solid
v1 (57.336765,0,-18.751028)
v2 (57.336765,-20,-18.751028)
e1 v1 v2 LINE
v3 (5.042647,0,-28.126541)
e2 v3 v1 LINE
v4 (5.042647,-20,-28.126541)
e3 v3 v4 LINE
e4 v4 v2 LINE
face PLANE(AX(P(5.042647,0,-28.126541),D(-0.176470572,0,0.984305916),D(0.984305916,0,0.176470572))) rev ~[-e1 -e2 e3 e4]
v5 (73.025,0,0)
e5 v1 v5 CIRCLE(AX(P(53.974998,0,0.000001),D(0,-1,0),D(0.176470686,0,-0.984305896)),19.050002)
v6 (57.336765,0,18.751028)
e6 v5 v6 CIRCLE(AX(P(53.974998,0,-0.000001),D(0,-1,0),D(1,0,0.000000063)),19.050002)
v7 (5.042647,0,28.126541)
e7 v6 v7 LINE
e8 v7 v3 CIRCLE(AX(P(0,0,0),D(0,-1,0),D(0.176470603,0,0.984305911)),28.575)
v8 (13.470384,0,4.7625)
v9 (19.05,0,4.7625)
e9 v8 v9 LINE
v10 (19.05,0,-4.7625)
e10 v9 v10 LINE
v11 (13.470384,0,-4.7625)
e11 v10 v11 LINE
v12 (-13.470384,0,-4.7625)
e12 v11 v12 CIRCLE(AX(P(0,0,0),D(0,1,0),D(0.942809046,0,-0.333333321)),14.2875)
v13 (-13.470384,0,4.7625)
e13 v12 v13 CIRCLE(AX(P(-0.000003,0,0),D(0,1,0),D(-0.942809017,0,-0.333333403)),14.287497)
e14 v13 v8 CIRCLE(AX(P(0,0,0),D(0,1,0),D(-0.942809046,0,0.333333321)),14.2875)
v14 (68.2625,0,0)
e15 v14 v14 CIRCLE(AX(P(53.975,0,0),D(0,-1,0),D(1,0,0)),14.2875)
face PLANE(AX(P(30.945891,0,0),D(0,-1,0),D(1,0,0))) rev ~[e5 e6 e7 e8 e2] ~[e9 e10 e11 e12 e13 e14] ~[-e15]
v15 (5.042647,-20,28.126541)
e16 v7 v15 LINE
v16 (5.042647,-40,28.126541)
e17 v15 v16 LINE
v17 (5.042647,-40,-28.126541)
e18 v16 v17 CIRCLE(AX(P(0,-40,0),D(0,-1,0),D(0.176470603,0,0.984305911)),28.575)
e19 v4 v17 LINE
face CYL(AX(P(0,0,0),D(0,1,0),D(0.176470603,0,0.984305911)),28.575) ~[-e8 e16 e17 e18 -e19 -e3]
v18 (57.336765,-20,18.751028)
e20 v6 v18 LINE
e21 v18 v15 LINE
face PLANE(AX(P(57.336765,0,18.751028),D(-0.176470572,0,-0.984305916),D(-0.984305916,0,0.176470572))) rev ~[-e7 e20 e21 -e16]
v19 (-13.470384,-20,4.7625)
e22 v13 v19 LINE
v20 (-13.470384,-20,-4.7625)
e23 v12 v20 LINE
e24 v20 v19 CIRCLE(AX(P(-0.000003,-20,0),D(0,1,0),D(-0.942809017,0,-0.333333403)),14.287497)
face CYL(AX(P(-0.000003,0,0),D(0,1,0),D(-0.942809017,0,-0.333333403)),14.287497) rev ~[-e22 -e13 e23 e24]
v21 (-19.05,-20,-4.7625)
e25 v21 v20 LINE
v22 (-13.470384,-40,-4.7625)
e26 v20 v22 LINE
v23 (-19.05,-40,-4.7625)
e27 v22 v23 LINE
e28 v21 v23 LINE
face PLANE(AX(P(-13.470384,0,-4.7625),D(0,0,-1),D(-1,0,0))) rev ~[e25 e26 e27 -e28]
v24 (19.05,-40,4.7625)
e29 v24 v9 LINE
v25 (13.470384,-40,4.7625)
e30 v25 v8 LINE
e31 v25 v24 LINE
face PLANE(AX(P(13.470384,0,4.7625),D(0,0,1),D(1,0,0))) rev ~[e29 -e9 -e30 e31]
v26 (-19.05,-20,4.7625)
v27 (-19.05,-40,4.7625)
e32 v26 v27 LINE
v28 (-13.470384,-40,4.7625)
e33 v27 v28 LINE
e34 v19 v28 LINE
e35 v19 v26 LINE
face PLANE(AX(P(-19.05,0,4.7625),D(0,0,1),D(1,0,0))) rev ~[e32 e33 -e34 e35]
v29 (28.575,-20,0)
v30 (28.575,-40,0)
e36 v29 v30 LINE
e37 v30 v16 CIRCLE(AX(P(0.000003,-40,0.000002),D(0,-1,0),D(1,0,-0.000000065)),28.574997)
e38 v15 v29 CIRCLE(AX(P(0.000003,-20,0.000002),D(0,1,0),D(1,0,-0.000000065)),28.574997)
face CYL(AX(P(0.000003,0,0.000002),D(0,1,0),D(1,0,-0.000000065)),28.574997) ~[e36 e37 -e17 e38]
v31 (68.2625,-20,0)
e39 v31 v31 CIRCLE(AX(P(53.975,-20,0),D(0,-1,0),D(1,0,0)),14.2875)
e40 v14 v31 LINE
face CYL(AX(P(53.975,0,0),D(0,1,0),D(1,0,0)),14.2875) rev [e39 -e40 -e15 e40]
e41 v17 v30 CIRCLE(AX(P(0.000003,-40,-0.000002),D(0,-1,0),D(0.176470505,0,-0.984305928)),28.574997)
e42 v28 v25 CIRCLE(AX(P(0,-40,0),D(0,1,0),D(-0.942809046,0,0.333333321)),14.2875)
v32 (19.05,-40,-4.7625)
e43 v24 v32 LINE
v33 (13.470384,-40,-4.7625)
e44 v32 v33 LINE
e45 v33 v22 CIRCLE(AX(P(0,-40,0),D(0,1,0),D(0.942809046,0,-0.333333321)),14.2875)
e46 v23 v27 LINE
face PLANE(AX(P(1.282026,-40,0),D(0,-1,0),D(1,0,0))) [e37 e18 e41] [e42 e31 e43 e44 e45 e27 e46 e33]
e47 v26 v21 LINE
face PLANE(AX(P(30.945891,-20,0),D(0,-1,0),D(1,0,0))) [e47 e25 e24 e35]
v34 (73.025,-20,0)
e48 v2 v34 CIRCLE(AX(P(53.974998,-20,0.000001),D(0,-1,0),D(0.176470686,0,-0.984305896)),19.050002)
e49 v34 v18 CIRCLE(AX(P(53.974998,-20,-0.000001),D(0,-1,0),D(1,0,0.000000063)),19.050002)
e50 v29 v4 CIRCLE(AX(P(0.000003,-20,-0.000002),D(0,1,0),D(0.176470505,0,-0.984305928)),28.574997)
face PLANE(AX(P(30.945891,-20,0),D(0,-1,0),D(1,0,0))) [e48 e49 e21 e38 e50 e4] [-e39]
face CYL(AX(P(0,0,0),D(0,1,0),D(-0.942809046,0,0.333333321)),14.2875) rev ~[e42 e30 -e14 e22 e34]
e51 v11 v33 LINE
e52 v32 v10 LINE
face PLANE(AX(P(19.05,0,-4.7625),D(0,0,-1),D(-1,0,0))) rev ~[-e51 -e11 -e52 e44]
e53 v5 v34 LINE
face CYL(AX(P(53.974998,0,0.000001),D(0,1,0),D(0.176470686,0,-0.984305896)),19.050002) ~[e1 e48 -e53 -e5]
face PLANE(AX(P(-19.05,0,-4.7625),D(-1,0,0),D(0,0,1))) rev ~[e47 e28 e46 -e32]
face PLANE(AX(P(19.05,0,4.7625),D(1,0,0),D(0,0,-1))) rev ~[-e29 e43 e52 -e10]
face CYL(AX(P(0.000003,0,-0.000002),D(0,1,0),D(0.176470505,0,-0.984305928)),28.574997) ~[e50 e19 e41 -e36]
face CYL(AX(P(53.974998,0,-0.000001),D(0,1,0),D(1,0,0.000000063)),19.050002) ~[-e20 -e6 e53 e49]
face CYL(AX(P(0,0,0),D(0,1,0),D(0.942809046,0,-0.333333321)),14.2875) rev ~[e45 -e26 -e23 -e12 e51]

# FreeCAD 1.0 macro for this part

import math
import FreeCAD as App
import Part
import Sketcher
Q = App.Units.Quantity

doc = App.newDocument("Part")
body = doc.addObject("PartDesign::Body", "Body")

sketch1 = doc.addObject("Sketcher::SketchObject", "Sketch")
body.addObject(sketch1)
sketch1.AttachmentSupport = (doc.XZ_Plane, [""])
sketch1.MapMode = "FlatFace"
sketch1.addGeometry(Part.LineSegment(App.Vector(57, 19, 0), App.Vector(5, 28, 0)), False)
sketch1.addGeometry(Part.ArcOfCircle(Part.Circle(App.Vector(0, 0, 0), App.Vector(0, 0, 1), 29), math.radians(80), math.radians(280)), False)
sketch1.addGeometry(Part.LineSegment(App.Vector(5, -28, 0), App.Vector(57, -19, 0)), False)
sketch1.addGeometry(Part.ArcOfCircle(Part.Circle(App.Vector(54, 0, 0), App.Vector(0, 0, 1), 19), math.radians(-80), math.radians(0)), False)
sketch1.addGeometry(Part.ArcOfCircle(Part.Circle(App.Vector(54, 0, 0), App.Vector(0, 0, 1), 19), math.radians(0), math.radians(80)), False)
sketch1.addGeometry(Part.ArcOfCircle(Part.Circle(App.Vector(0, 0, 0), App.Vector(0, 0, 1), 14), math.radians(-161), math.radians(-19)), False)
sketch1.addGeometry(Part.ArcOfCircle(Part.Circle(App.Vector(0, 0, 0), App.Vector(0, 0, 1), 14), math.radians(161), math.radians(199)), False)
sketch1.addGeometry(Part.ArcOfCircle(Part.Circle(App.Vector(0, 0, 0), App.Vector(0, 0, 1), 14), math.radians(19), math.radians(161)), False)
sketch1.addGeometry(Part.LineSegment(App.Vector(13, 5, 0), App.Vector(19, 5, 0)), False)
sketch1.addGeometry(Part.LineSegment(App.Vector(19, 5, 0), App.Vector(19, -5, 0)), False)
sketch1.addGeometry(Part.LineSegment(App.Vector(19, -5, 0), App.Vector(13, -5, 0)), False)
sketch1.addGeometry(Part.Circle(App.Vector(54, 0, 0), App.Vector(0, 0, 1), 14), False)
sketch1.addConstraint(Sketcher.Constraint("Tangent", 0, 2, 1, 1))
sketch1.addConstraint(Sketcher.Constraint("Tangent", 1, 2, 2, 1))
sketch1.addConstraint(Sketcher.Constraint("Tangent", 2, 2, 3, 1))
sketch1.addConstraint(Sketcher.Constraint("Tangent", 3, 2, 4, 1))
sketch1.addConstraint(Sketcher.Constraint("Tangent", 4, 2, 0, 1))
sketch1.addConstraint(Sketcher.Constraint("Tangent", 5, 1, 6, 2))
sketch1.addConstraint(Sketcher.Constraint("Tangent", 6, 1, 7, 2))
sketch1.addConstraint(Sketcher.Constraint("Coincident", 7, 1, 8, 1))
sketch1.addConstraint(Sketcher.Constraint("Coincident", 8, 2, 9, 1))
sketch1.addConstraint(Sketcher.Constraint("Coincident", 9, 2, 10, 1))
sketch1.addConstraint(Sketcher.Constraint("Coincident", 10, 2, 5, 2))
sketch1.addConstraint(Sketcher.Constraint("Horizontal", 8))
sketch1.addConstraint(Sketcher.Constraint("Vertical", 9))
sketch1.addConstraint(Sketcher.Constraint("Horizontal", 10))
sketch1.addConstraint(Sketcher.Constraint("Coincident", 1, 3, -1, 1))
sketch1.addConstraint(Sketcher.Constraint("Coincident", 5, 3, -1, 1))
sketch1.addConstraint(Sketcher.Constraint("Coincident", 7, 3, -1, 1))
sketch1.addConstraint(Sketcher.Constraint("Coincident", 11, 3, 3, 3))
sketch1.addConstraint(Sketcher.Constraint("Equal", 3, 4))
sketch1.addConstraint(Sketcher.Constraint("Equal", 7, 11))
sketch1.addConstraint(Sketcher.Constraint("PointOnObject", 3, 3, -1))
sketch1.addConstraint(Sketcher.Constraint("PointOnObject", 3, 2, -1))
sketch1.addConstraint(Sketcher.Constraint("Horizontal", 6, 1, 7, 1))
sketch1.addConstraint(Sketcher.Constraint("Horizontal", 5, 1, 9, 2))
sketch1.addConstraint(Sketcher.Constraint("Vertical", 5, 1, 6, 1))
sketch1.addConstraint(Sketcher.Constraint("Radius", 3, Q("0.7500001 in")))
sketch1.addConstraint(Sketcher.Constraint("Diameter", 11, Q("1.125 in")))
sketch1.addConstraint(Sketcher.Constraint("Radius", 1, Q("1.125 in")))
sketch1.addConstraint(Sketcher.Constraint("DistanceY", 9, 2, 9, 1, Q("0.375 in")))
sketch1.addConstraint(Sketcher.Constraint("DistanceX", -1, 1, 8, 2, Q("0.75 in")))
sketch1.addConstraint(Sketcher.Constraint("DistanceX", -1, 1, 3, 3, Q("2.1249999 in")))
pad1 = doc.addObject("PartDesign::Pad", "Pad")
body.addObject(pad1)
pad1.Profile = sketch1
pad1.Length = 20

sketch2 = doc.addObject("Sketcher::SketchObject", "Sketch001")
body.addObject(sketch2)
sketch2.AttachmentSupport = (doc.XZ_Plane, [""])
sketch2.MapMode = "FlatFace"
sketch2.addGeometry(Part.ArcOfCircle(Part.Circle(App.Vector(0, 0, 0), App.Vector(0, 0, 1), 29), math.radians(-80), math.radians(0)), False)
sketch2.addGeometry(Part.ArcOfCircle(Part.Circle(App.Vector(0, 0, 0), App.Vector(0, 0, 1), 29), math.radians(0), math.radians(80)), False)
sketch2.addGeometry(Part.ArcOfCircle(Part.Circle(App.Vector(0, 0, 0), App.Vector(0, 0, 1), 29), math.radians(80), math.radians(280)), False)
sketch2.addGeometry(Part.LineSegment(App.Vector(-19, 5, 0), App.Vector(-13, 5, 0)), False)
sketch2.addGeometry(Part.ArcOfCircle(Part.Circle(App.Vector(0, 0, 0), App.Vector(0, 0, 1), 14), math.radians(19), math.radians(161)), False)
sketch2.addGeometry(Part.LineSegment(App.Vector(13, 5, 0), App.Vector(19, 5, 0)), False)
sketch2.addGeometry(Part.LineSegment(App.Vector(19, 5, 0), App.Vector(19, -5, 0)), False)
sketch2.addGeometry(Part.LineSegment(App.Vector(19, -5, 0), App.Vector(13, -5, 0)), False)
sketch2.addGeometry(Part.ArcOfCircle(Part.Circle(App.Vector(0, 0, 0), App.Vector(0, 0, 1), 14), math.radians(-161), math.radians(-19)), False)
sketch2.addGeometry(Part.LineSegment(App.Vector(-13, -5, 0), App.Vector(-19, -5, 0)), False)
sketch2.addGeometry(Part.LineSegment(App.Vector(-19, -5, 0), App.Vector(-19, 5, 0)), False)
sketch2.addConstraint(Sketcher.Constraint("Tangent", 0, 2, 1, 1))
sketch2.addConstraint(Sketcher.Constraint("Tangent", 1, 2, 2, 1))
sketch2.addConstraint(Sketcher.Constraint("Tangent", 2, 2, 0, 1))
sketch2.addConstraint(Sketcher.Constraint("Coincident", 3, 2, 4, 2))
sketch2.addConstraint(Sketcher.Constraint("Coincident", 4, 1, 5, 1))
sketch2.addConstraint(Sketcher.Constraint("Coincident", 5, 2, 6, 1))
sketch2.addConstraint(Sketcher.Constraint("Coincident", 6, 2, 7, 1))
sketch2.addConstraint(Sketcher.Constraint("Coincident", 7, 2, 8, 2))
sketch2.addConstraint(Sketcher.Constraint("Coincident", 8, 1, 9, 1))
sketch2.addConstraint(Sketcher.Constraint("Coincident", 9, 2, 10, 1))
sketch2.addConstraint(Sketcher.Constraint("Coincident", 10, 2, 3, 1))
sketch2.addConstraint(Sketcher.Constraint("Horizontal", 3))
sketch2.addConstraint(Sketcher.Constraint("Horizontal", 5))
sketch2.addConstraint(Sketcher.Constraint("Vertical", 6))
sketch2.addConstraint(Sketcher.Constraint("Horizontal", 7))
sketch2.addConstraint(Sketcher.Constraint("Horizontal", 9))
sketch2.addConstraint(Sketcher.Constraint("Vertical", 10))
sketch2.addConstraint(Sketcher.Constraint("Coincident", 0, 3, -1, 1))
sketch2.addConstraint(Sketcher.Constraint("Coincident", 4, 3, -1, 1))
sketch2.addConstraint(Sketcher.Constraint("Coincident", 8, 3, -1, 1))
sketch2.addConstraint(Sketcher.Constraint("Equal", 4, 8))
sketch2.addConstraint(Sketcher.Constraint("Symmetric", 5, 2, 9, 2, -1, 1))
sketch2.addConstraint(Sketcher.Constraint("PointOnObject", 0, 2, -1))
sketch2.addConstraint(Sketcher.Constraint("Horizontal", 3, 2, 4, 1))
sketch2.addConstraint(Sketcher.Constraint("Horizontal", 7, 2, 8, 1))
sketch2.addConstraint(Sketcher.Constraint("Vertical", 1, 2, 2, 2))
sketch2.addConstraint(Sketcher.Constraint("Radius", 0, Q("1.1249999 in")))
sketch2.addConstraint(Sketcher.Constraint("Radius", 4, Q("0.5625 in")))
sketch2.addConstraint(Sketcher.Constraint("DistanceY", 6, 2, 6, 1, Q("0.375 in")))
sketch2.addConstraint(Sketcher.Constraint("DistanceX", -1, 1, 5, 2, Q("0.75 in")))
sketch2.addConstraint(Sketcher.Constraint("DistanceY", -1, 1, 1, 2, 28.126541))
pad2 = doc.addObject("PartDesign::Pad", "Pad001")
body.addObject(pad2)
pad2.Profile = sketch2
pad2.Length = 40

doc.recompute()
